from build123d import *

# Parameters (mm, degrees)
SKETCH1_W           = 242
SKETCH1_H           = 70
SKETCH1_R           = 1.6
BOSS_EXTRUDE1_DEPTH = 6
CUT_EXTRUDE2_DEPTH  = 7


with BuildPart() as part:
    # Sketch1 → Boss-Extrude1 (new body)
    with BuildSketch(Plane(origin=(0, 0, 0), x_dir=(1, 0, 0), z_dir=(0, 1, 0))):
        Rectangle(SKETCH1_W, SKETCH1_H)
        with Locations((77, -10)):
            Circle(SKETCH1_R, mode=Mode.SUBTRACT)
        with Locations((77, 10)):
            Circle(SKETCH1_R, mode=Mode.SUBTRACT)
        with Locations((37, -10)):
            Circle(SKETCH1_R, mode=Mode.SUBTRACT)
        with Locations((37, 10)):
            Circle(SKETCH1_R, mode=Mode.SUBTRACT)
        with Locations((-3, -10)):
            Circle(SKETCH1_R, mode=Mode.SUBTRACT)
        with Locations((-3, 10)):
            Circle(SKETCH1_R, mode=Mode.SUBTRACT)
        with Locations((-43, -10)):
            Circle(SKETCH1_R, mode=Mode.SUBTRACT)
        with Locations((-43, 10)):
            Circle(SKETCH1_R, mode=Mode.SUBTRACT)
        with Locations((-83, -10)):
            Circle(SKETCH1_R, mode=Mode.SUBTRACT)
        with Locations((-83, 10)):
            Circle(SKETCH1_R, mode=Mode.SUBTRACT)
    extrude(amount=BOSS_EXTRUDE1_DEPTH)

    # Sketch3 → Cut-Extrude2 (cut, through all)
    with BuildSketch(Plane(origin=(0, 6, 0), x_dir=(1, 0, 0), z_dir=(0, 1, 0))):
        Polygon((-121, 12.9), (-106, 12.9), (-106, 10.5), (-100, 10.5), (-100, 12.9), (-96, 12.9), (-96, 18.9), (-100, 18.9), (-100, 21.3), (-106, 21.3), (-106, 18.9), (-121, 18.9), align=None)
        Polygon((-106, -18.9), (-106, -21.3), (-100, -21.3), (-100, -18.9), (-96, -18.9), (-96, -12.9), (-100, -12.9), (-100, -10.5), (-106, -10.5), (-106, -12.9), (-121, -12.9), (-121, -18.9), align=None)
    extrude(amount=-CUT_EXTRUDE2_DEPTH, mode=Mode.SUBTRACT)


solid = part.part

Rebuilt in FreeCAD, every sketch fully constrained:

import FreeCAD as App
import Part
import Sketcher
Q = App.Units.Quantity

doc = App.newDocument("Part")
body = doc.addObject("PartDesign::Body", "Body")

sketch1 = body.newObject("Sketcher::SketchObject", "Sketch")
sketch1.AttachmentSupport = (doc.getObject("XZ_Plane"), [""])
sketch1.MapMode = "FlatFace"
sketch1.addGeometry([
    Part.LineSegment(App.Vector(-121, -35, 0), App.Vector(-121, 35, 0)),
    Part.LineSegment(App.Vector(-121, 35, 0), App.Vector(121, 35, 0)),
    Part.LineSegment(App.Vector(121, 35, 0), App.Vector(121, -35, 0)),
    Part.LineSegment(App.Vector(121, -35, 0), App.Vector(-121, -35, 0)),
    Part.Circle(App.Vector(-83, 10, 0), App.Vector(0, 0, 1), 1.6),
    Part.Circle(App.Vector(-43, 10, 0), App.Vector(0, 0, 1), 1.6),
    Part.Circle(App.Vector(-3, 10, 0), App.Vector(0, 0, 1), 1.6),
    Part.Circle(App.Vector(37, 10, 0), App.Vector(0, 0, 1), 1.6),
    Part.Circle(App.Vector(77, 10, 0), App.Vector(0, 0, 1), 1.6),
    Part.Circle(App.Vector(-83, -10, 0), App.Vector(0, 0, 1), 1.6),
    Part.Circle(App.Vector(-43, -10, 0), App.Vector(0, 0, 1), 1.6),
    Part.Circle(App.Vector(-3, -10, 0), App.Vector(0, 0, 1), 1.6),
    Part.Circle(App.Vector(37, -10, 0), App.Vector(0, 0, 1), 1.6),
    Part.Circle(App.Vector(77, -10, 0), App.Vector(0, 0, 1), 1.6),
], False)
sketch1.addConstraint([
    Sketcher.Constraint("Coincident", 0, 2, 1, 1),
    Sketcher.Constraint("Coincident", 1, 2, 2, 1),
    Sketcher.Constraint("Coincident", 2, 2, 3, 1),
    Sketcher.Constraint("Coincident", 3, 2, 0, 1),
    Sketcher.Constraint("Vertical", 0),
    Sketcher.Constraint("Horizontal", 1),
    Sketcher.Constraint("Vertical", 2),
    Sketcher.Constraint("Horizontal", 3),
    Sketcher.Constraint("Equal", 4, 5),
    Sketcher.Constraint("Equal", 5, 6),
    Sketcher.Constraint("Equal", 6, 7),
    Sketcher.Constraint("Equal", 7, 8),
    Sketcher.Constraint("Equal", 8, 9),
    Sketcher.Constraint("Equal", 9, 10),
    Sketcher.Constraint("Equal", 10, 11),
    Sketcher.Constraint("Equal", 11, 12),
    Sketcher.Constraint("Equal", 12, 13),
    Sketcher.Constraint("Symmetric", 0, 2, 2, 2, -1, 1),
    Sketcher.Constraint("Symmetric", 4, 3, 9, 3, -1),
    Sketcher.Constraint("Symmetric", 5, 3, 10, 3, -1),
    Sketcher.Constraint("Symmetric", 6, 3, 11, 3, -1),
    Sketcher.Constraint("Symmetric", 7, 3, 12, 3, -1),
    Sketcher.Constraint("Symmetric", 8, 3, 13, 3, -1),
    Sketcher.Constraint("Horizontal", 4, 3, 5, 3),
    Sketcher.Constraint("Horizontal", 5, 3, 6, 3),
    Sketcher.Constraint("Horizontal", 6, 3, 7, 3),
    Sketcher.Constraint("Horizontal", 7, 3, 8, 3),
    Sketcher.Constraint("Diameter", 4, Q("3.2 mm")),
    Sketcher.Constraint("DistanceX", 1, 1, 1, 2, Q("242 mm")),
    Sketcher.Constraint("DistanceY", 0, 1, 0, 2, Q("70 mm")),
    Sketcher.Constraint("DistanceX", 4, 3, -1, 1, Q("83 mm")),
    Sketcher.Constraint("DistanceY", -1, 1, 4, 3, Q("10 mm")),
    Sketcher.Constraint("DistanceX", 5, 3, -1, 1, Q("43 mm")),
    Sketcher.Constraint("DistanceX", 6, 3, -1, 1, Q("3 mm")),
    Sketcher.Constraint("DistanceX", -1, 1, 7, 3, Q("37 mm")),
    Sketcher.Constraint("DistanceX", -1, 1, 8, 3, Q("77 mm")),
])
pad1 = body.newObject("PartDesign::Pad", "Pad")
pad1.Profile = sketch1
pad1.Length = 6
pad1.Reversed = True

sketch2 = body.newObject("Sketcher::SketchObject", "Sketch001")
sketch2.AttachmentSupport = (doc.getObject("XZ_Plane"), [""])
sketch2.MapMode = "FlatFace"
sketch2.AttachmentOffset = App.Placement(App.Vector(0, 0, -6), App.Rotation())
sketch2.addGeometry([
    Part.LineSegment(App.Vector(-121, -12.9, 0), App.Vector(-106, -12.9, 0)),
    Part.LineSegment(App.Vector(-106, -12.9, 0), App.Vector(-106, -10.5, 0)),
    Part.LineSegment(App.Vector(-106, -10.5, 0), App.Vector(-100, -10.5, 0)),
    Part.LineSegment(App.Vector(-100, -10.5, 0), App.Vector(-100, -12.9, 0)),
    Part.LineSegment(App.Vector(-100, -12.9, 0), App.Vector(-96, -12.9, 0)),
    Part.LineSegment(App.Vector(-96, -12.9, 0), App.Vector(-96, -18.9, 0)),
    Part.LineSegment(App.Vector(-96, -18.9, 0), App.Vector(-100, -18.9, 0)),
    Part.LineSegment(App.Vector(-100, -18.9, 0), App.Vector(-100, -21.3, 0)),
    Part.LineSegment(App.Vector(-100, -21.3, 0), App.Vector(-106, -21.3, 0)),
    Part.LineSegment(App.Vector(-106, -21.3, 0), App.Vector(-106, -18.9, 0)),
    Part.LineSegment(App.Vector(-106, -18.9, 0), App.Vector(-121, -18.9, 0)),
    Part.LineSegment(App.Vector(-121, -18.9, 0), App.Vector(-121, -12.9, 0)),
    Part.LineSegment(App.Vector(-106, 18.9, 0), App.Vector(-106, 21.3, 0)),
    Part.LineSegment(App.Vector(-106, 21.3, 0), App.Vector(-100, 21.3, 0)),
    Part.LineSegment(App.Vector(-100, 21.3, 0), App.Vector(-100, 18.9, 0)),
    Part.LineSegment(App.Vector(-100, 18.9, 0), App.Vector(-96, 18.9, 0)),
    Part.LineSegment(App.Vector(-96, 18.9, 0), App.Vector(-96, 12.9, 0)),
    Part.LineSegment(App.Vector(-96, 12.9, 0), App.Vector(-100, 12.9, 0)),
    Part.LineSegment(App.Vector(-100, 12.9, 0), App.Vector(-100, 10.5, 0)),
    Part.LineSegment(App.Vector(-100, 10.5, 0), App.Vector(-106, 10.5, 0)),
    Part.LineSegment(App.Vector(-106, 10.5, 0), App.Vector(-106, 12.9, 0)),
    Part.LineSegment(App.Vector(-106, 12.9, 0), App.Vector(-121, 12.9, 0)),
    Part.LineSegment(App.Vector(-121, 12.9, 0), App.Vector(-121, 18.9, 0)),
    Part.LineSegment(App.Vector(-121, 18.9, 0), App.Vector(-106, 18.9, 0)),
], False)
sketch2.addConstraint([
    Sketcher.Constraint("Coincident", 0, 2, 1, 1),
    Sketcher.Constraint("Coincident", 1, 2, 2, 1),
    Sketcher.Constraint("Coincident", 2, 2, 3, 1),
    Sketcher.Constraint("Coincident", 3, 2, 4, 1),
    Sketcher.Constraint("Coincident", 4, 2, 5, 1),
    Sketcher.Constraint("Coincident", 5, 2, 6, 1),
    Sketcher.Constraint("Coincident", 6, 2, 7, 1),
    Sketcher.Constraint("Coincident", 7, 2, 8, 1),
    Sketcher.Constraint("Coincident", 8, 2, 9, 1),
    Sketcher.Constraint("Coincident", 9, 2, 10, 1),
    Sketcher.Constraint("Coincident", 10, 2, 11, 1),
    Sketcher.Constraint("Coincident", 11, 2, 0, 1),
    Sketcher.Constraint("Coincident", 12, 2, 13, 1),
    Sketcher.Constraint("Coincident", 13, 2, 14, 1),
    Sketcher.Constraint("Coincident", 14, 2, 15, 1),
    Sketcher.Constraint("Coincident", 15, 2, 16, 1),
    Sketcher.Constraint("Coincident", 16, 2, 17, 1),
    Sketcher.Constraint("Coincident", 17, 2, 18, 1),
    Sketcher.Constraint("Coincident", 18, 2, 19, 1),
    Sketcher.Constraint("Coincident", 19, 2, 20, 1),
    Sketcher.Constraint("Coincident", 20, 2, 21, 1),
    Sketcher.Constraint("Coincident", 21, 2, 22, 1),
    Sketcher.Constraint("Coincident", 22, 2, 23, 1),
    Sketcher.Constraint("Coincident", 23, 2, 12, 1),
    Sketcher.Constraint("Horizontal", 0),
    Sketcher.Constraint("Vertical", 1),
    Sketcher.Constraint("Horizontal", 2),
    Sketcher.Constraint("Vertical", 3),
    Sketcher.Constraint("Horizontal", 4),
    Sketcher.Constraint("Vertical", 5),
    Sketcher.Constraint("Horizontal", 6),
    Sketcher.Constraint("Vertical", 7),
    Sketcher.Constraint("Horizontal", 8),
    Sketcher.Constraint("Vertical", 9),
    Sketcher.Constraint("Horizontal", 10),
    Sketcher.Constraint("Vertical", 11),
    Sketcher.Constraint("Vertical", 12),
    Sketcher.Constraint("Horizontal", 13),
    Sketcher.Constraint("Vertical", 14),
    Sketcher.Constraint("Horizontal", 15),
    Sketcher.Constraint("Vertical", 16),
    Sketcher.Constraint("Horizontal", 17),
    Sketcher.Constraint("Vertical", 18),
    Sketcher.Constraint("Horizontal", 19),
    Sketcher.Constraint("Vertical", 20),
    Sketcher.Constraint("Horizontal", 21),
    Sketcher.Constraint("Vertical", 22),
    Sketcher.Constraint("Horizontal", 23),
    Sketcher.Constraint("Symmetric", 8, 2, 12, 2, -1),
    Sketcher.Constraint("Symmetric", 6, 2, 14, 2, -1),
    Sketcher.Constraint("Symmetric", 4, 2, 16, 2, -1),
    Sketcher.Constraint("Symmetric", 2, 2, 18, 2, -1),
    Sketcher.Constraint("Symmetric", 0, 2, 20, 2, -1),
    Sketcher.Constraint("Symmetric", 10, 2, 22, 2, -1),
    Sketcher.Constraint("Horizontal", 0, 2, 3, 2),
    Sketcher.Constraint("Horizontal", 6, 2, 9, 2),
    Sketcher.Constraint("Vertical", 3, 2, 6, 2),
    Sketcher.Constraint("Vertical", 1, 2, 8, 2),
    Sketcher.Constraint("Equal", 19, 5),
    Sketcher.Constraint("Equal", 3, 7),
    Sketcher.Constraint("DistanceX", 0, 1, 0, 2, Q("15 mm")),
    Sketcher.Constraint("DistanceX", 2, 1, 2, 2, Q("6 mm")),
    Sketcher.Constraint("DistanceX", 4, 1, 4, 2, Q("4 mm")),
    Sketcher.Constraint("DistanceY", 1, 1, 1, 2, Q("2.4 mm")),
    Sketcher.Constraint("DistanceX", 0, 2, -1, 1, Q("106 mm")),
    Sketcher.Constraint("DistanceY", 0, 2, -1, 1, Q("12.9 mm")),
])
pocket1 = body.newObject("PartDesign::Pocket", "Pocket")
pocket1.Profile = sketch2
pocket1.Type = "ThroughAll"
pocket1.Reversed = True

doc.recompute()
